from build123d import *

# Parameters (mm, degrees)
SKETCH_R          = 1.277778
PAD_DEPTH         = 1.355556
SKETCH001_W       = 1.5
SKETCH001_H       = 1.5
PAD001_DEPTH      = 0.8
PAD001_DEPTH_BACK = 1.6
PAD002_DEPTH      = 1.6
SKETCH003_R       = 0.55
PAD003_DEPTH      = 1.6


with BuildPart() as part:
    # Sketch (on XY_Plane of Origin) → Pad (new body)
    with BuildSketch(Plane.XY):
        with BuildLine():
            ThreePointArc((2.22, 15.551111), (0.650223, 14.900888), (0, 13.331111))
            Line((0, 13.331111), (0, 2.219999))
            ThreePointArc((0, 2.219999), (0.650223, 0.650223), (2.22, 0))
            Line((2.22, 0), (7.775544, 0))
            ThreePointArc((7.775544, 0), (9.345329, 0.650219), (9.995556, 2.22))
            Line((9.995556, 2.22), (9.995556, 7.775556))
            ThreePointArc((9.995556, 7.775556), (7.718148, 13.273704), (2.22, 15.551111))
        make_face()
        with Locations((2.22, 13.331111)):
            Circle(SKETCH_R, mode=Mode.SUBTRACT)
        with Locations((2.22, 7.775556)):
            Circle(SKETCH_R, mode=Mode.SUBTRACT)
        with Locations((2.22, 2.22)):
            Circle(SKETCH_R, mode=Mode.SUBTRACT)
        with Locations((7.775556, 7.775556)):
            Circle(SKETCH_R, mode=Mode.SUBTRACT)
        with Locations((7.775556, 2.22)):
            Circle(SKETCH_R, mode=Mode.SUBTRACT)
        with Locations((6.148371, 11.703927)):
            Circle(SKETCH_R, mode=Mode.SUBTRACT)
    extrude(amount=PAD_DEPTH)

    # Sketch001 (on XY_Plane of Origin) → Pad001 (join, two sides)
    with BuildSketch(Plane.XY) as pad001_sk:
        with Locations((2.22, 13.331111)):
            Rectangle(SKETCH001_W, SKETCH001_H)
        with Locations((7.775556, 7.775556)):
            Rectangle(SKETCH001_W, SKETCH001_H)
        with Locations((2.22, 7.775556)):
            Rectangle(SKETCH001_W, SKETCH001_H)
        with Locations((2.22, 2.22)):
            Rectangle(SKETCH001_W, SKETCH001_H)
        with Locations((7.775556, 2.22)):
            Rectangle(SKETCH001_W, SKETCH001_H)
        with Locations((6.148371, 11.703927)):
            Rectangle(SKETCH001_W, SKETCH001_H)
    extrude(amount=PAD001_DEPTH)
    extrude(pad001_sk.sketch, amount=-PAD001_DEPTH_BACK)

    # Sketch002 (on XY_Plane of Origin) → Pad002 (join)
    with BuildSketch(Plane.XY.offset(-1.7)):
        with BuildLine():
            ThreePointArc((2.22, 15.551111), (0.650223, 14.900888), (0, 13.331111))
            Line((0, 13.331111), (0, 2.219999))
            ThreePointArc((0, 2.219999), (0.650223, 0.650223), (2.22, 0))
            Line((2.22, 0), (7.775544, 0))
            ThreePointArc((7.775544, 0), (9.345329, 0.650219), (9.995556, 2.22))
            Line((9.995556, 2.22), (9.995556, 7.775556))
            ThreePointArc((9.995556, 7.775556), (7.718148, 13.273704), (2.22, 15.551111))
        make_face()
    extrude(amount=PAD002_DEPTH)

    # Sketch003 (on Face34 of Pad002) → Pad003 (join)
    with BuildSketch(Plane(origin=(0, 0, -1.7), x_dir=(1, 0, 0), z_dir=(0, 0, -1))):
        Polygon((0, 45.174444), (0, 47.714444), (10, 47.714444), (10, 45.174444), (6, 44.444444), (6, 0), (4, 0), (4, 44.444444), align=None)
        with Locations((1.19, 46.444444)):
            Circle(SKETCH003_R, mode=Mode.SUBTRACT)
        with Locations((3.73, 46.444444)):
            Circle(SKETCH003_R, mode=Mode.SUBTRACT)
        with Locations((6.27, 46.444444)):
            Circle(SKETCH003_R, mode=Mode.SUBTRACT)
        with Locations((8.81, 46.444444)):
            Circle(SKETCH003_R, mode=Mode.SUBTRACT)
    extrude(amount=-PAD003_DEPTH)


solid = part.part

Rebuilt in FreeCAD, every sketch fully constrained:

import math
import FreeCAD as App
import Part
import Sketcher

V = App.Vector
Q = App.Units.Quantity


def add_polygon(sketch, points):
    """Adds a closed chain of lines whose ends are joined by coincident constraints."""
    first, n = sketch.GeometryCount, len(points)
    for a, b in zip(points, points[1:] + points[:1]):
        sketch.addGeometry(Part.LineSegment(App.Vector(*a, 0), App.Vector(*b, 0)), False)
    for i in range(n):
        sketch.addConstraint(Sketcher.Constraint("Coincident", first + i, 2, first + (i + 1) % n, 1))

doc = App.newDocument("Part")
body = doc.addObject("PartDesign::Body", "Body")
body.AllowCompound = True

# Sketch on XY plane
sketch1 = body.newObject("Sketcher::SketchObject", "Sketch")
sketch1.AttachmentSupport = (doc.getObject("XY_Plane"), [""])
sketch1.MapMode = "FlatFace"
sketch1.addGeometry(Part.ArcOfCircle(Part.Circle(V(2.22, 13.331111, 0), V(0, 0, 1), 2.22), math.radians(90.000005), math.radians(179.999995)), False)
sketch1.addGeometry(Part.LineSegment(V(0, 13.331111, 0), V(0, 2.219999, 0)), False)
sketch1.addGeometry(Part.ArcOfCircle(Part.Circle(V(2.22, 2.22, 0), V(0, 0, 1), 2.22), math.radians(-179.999969), math.radians(-90.000005)), False)
sketch1.addGeometry(Part.LineSegment(V(2.22, 0, 0), V(7.775544, 0, 0)), False)
sketch1.addGeometry(Part.ArcOfCircle(Part.Circle(V(7.775556, 2.22, 0), V(0, 0, 1), 2.22), math.radians(-90.000305), math.radians(-0.000005)), False)
sketch1.addGeometry(Part.LineSegment(V(9.995556, 2.22, 0), V(9.995556, 7.775556, 0)), False)
sketch1.addGeometry(Part.ArcOfCircle(Part.Circle(V(2.22, 7.775555, 0), V(0, 0, 1), 7.775556), math.radians(0.000004), math.radians(90.000003)), False)
sketch1.addGeometry(Part.Circle(V(2.22, 2.22, 0), V(0, 0, 1), 1.277778), False)
sketch1.addGeometry(Part.Circle(V(7.775556, 2.22, 0), V(0, 0, 1), 1.277778), False)
sketch1.addGeometry(Part.Circle(V(2.22, 7.775556, 0), V(0, 0, 1), 1.277778), False)
sketch1.addGeometry(Part.Circle(V(2.22, 13.331111, 0), V(0, 0, 1), 1.277778), False)
sketch1.addGeometry(Part.Circle(V(7.775556, 7.775556, 0), V(0, 0, 1), 1.277778), False)
sketch1.addGeometry(Part.Circle(V(6.148371, 11.703927, 0), V(0, 0, 1), 1.277778), False)
sketch1.addConstraint(Sketcher.Constraint("Tangent", 0, 2, 1, 1))
sketch1.addConstraint(Sketcher.Constraint("Tangent", 1, 2, 2, 1))
sketch1.addConstraint(Sketcher.Constraint("Tangent", 2, 2, 3, 1))
sketch1.addConstraint(Sketcher.Constraint("Coincident", 3, 2, 4, 1))
sketch1.addConstraint(Sketcher.Constraint("Tangent", 4, 2, 5, 1))
sketch1.addConstraint(Sketcher.Constraint("Tangent", 5, 2, 6, 1))
sketch1.addConstraint(Sketcher.Constraint("Tangent", 6, 2, 0, 1))
sketch1.addConstraint(Sketcher.Constraint("Vertical", 1))
sketch1.addConstraint(Sketcher.Constraint("Horizontal", 3))
sketch1.addConstraint(Sketcher.Constraint("Vertical", 5))
sketch1.addConstraint(Sketcher.Constraint("Coincident", 7, 3, 2, 3))
sketch1.addConstraint(Sketcher.Constraint("Coincident", 8, 3, 4, 3))
sketch1.addConstraint(Sketcher.Constraint("Coincident", 9, 3, 6, 3))
sketch1.addConstraint(Sketcher.Constraint("Coincident", 10, 3, 0, 3))
sketch1.addConstraint(Sketcher.Constraint("Equal", 0, 2))
sketch1.addConstraint(Sketcher.Constraint("Equal", 2, 4))
sketch1.addConstraint(Sketcher.Constraint("Equal", 7, 8))
sketch1.addConstraint(Sketcher.Constraint("Equal", 8, 9))
sketch1.addConstraint(Sketcher.Constraint("Equal", 9, 10))
sketch1.addConstraint(Sketcher.Constraint("Equal", 10, 11))
sketch1.addConstraint(Sketcher.Constraint("Equal", 11, 12))
sketch1.addConstraint(Sketcher.Constraint("PointOnObject", 0, 2, -2))
sketch1.addConstraint(Sketcher.Constraint("PointOnObject", 2, 2, -1))
sketch1.addConstraint(Sketcher.Constraint("Horizontal", 9, 3, 11, 3))
sketch1.addConstraint(Sketcher.Constraint("Vertical", 2, 3, 6, 3))
sketch1.addConstraint(Sketcher.Constraint("Vertical", 8, 3, 11, 3))
sketch1.addConstraint(Sketcher.Constraint("Radius", 0, Q("2.22 mm")))
sketch1.addConstraint(Sketcher.Constraint("Diameter", 7, Q("2.555556 mm")))
sketch1.addConstraint(Sketcher.Constraint("Radius", 6, Q("7.775556 mm")))
sketch1.addConstraint(Sketcher.Constraint("DistanceX", 3, 1, 3, 2, Q("5.555544 mm")))
sketch1.addConstraint(Sketcher.Constraint("DistanceY", 1, 2, 1, 1, Q("11.111112 mm")))
sketch1.addConstraint(Sketcher.Constraint("DistanceX", -1, 1, 12, 3, Q("6.148371 mm")))
sketch1.addConstraint(Sketcher.Constraint("DistanceY", 11, 3, 12, 3, Q("3.928371 mm")))
pad1 = body.newObject("PartDesign::Pad", "Pad")
pad1.Profile = sketch1
pad1.Length = 1.355556

# Sketch on XY plane
sketch2 = body.newObject("Sketcher::SketchObject", "Sketch001")
sketch2.AttachmentSupport = (doc.getObject("XY_Plane"), [""])
sketch2.MapMode = "FlatFace"
add_polygon(sketch2, [(1.47, 14.081111), (1.47, 12.581111), (2.97, 12.581111), (2.97, 14.081111)])  # lines 0-3
add_polygon(sketch2, [(7.025556, 8.525556), (7.025556, 7.025556), (8.525556, 7.025556), (8.525556, 8.525556)])  # lines 4-7
add_polygon(sketch2, [(1.47, 8.525556), (1.47, 7.025556), (2.97, 7.025556), (2.97, 8.525556)])  # lines 8-11
add_polygon(sketch2, [(1.47, 2.97), (1.47, 1.47), (2.97, 1.47), (2.97, 2.97)])  # lines 12-15
add_polygon(sketch2, [(7.025556, 2.97), (7.025556, 1.47), (8.525556, 1.47), (8.525556, 2.97)])  # lines 16-19
add_polygon(sketch2, [(5.398371, 12.453927), (5.398371, 10.953927), (6.898371, 10.953927), (6.898371, 12.453927)])  # lines 20-23
sketch2.addConstraint(Sketcher.Constraint("Vertical", 0))
sketch2.addConstraint(Sketcher.Constraint("Horizontal", 1))
sketch2.addConstraint(Sketcher.Constraint("Vertical", 2))
sketch2.addConstraint(Sketcher.Constraint("Horizontal", 3))
sketch2.addConstraint(Sketcher.Constraint("Vertical", 4))
sketch2.addConstraint(Sketcher.Constraint("Horizontal", 5))
sketch2.addConstraint(Sketcher.Constraint("Vertical", 6))
sketch2.addConstraint(Sketcher.Constraint("Horizontal", 7))
sketch2.addConstraint(Sketcher.Constraint("Vertical", 8))
sketch2.addConstraint(Sketcher.Constraint("Horizontal", 9))
sketch2.addConstraint(Sketcher.Constraint("Vertical", 10))
sketch2.addConstraint(Sketcher.Constraint("Horizontal", 11))
sketch2.addConstraint(Sketcher.Constraint("Vertical", 12))
sketch2.addConstraint(Sketcher.Constraint("Horizontal", 13))
sketch2.addConstraint(Sketcher.Constraint("Vertical", 14))
sketch2.addConstraint(Sketcher.Constraint("Horizontal", 15))
sketch2.addConstraint(Sketcher.Constraint("Vertical", 16))
sketch2.addConstraint(Sketcher.Constraint("Horizontal", 17))
sketch2.addConstraint(Sketcher.Constraint("Vertical", 18))
sketch2.addConstraint(Sketcher.Constraint("Horizontal", 19))
sketch2.addConstraint(Sketcher.Constraint("Vertical", 20))
sketch2.addConstraint(Sketcher.Constraint("Horizontal", 21))
sketch2.addConstraint(Sketcher.Constraint("Vertical", 22))
sketch2.addConstraint(Sketcher.Constraint("Horizontal", 23))
sketch2.addConstraint(Sketcher.Constraint("Horizontal", 5, 2, 8, 2))
sketch2.addConstraint(Sketcher.Constraint("Horizontal", 7, 2, 10, 2))
sketch2.addConstraint(Sketcher.Constraint("Horizontal", 13, 2, 16, 2))
sketch2.addConstraint(Sketcher.Constraint("Horizontal", 15, 2, 18, 2))
sketch2.addConstraint(Sketcher.Constraint("Vertical", 3, 2, 8, 2))
sketch2.addConstraint(Sketcher.Constraint("Vertical", 2, 2, 9, 2))
sketch2.addConstraint(Sketcher.Constraint("Vertical", 11, 2, 12, 2))
sketch2.addConstraint(Sketcher.Constraint("Vertical", 10, 2, 13, 2))
sketch2.addConstraint(Sketcher.Constraint("Vertical", 7, 2, 16, 2))
sketch2.addConstraint(Sketcher.Constraint("Vertical", 6, 2, 17, 2))
sketch2.addConstraint(Sketcher.Constraint("Equal", 3, 5))
sketch2.addConstraint(Sketcher.Constraint("Equal", 19, 21))
sketch2.addConstraint(Sketcher.Constraint("Equal", 23, 0))
sketch2.addConstraint(Sketcher.Constraint("Equal", 2, 4))
sketch2.addConstraint(Sketcher.Constraint("Equal", 10, 12))
sketch2.addConstraint(Sketcher.Constraint("Equal", 18, 20))
sketch2.addConstraint(Sketcher.Constraint("DistanceX", 1, 1, 1, 2, Q("1.5 mm")))
sketch2.addConstraint(Sketcher.Constraint("DistanceX", -1, 1, 0, 2, Q("1.47 mm")))
sketch2.addConstraint(Sketcher.Constraint("DistanceY", -1, 1, 12, 2, Q("1.47 mm")))
sketch2.addConstraint(Sketcher.Constraint("DistanceY", -1, 1, 0, 2, Q("12.581111 mm")))
sketch2.addConstraint(Sketcher.Constraint("DistanceX", -1, 1, 20, 2, Q("5.398371 mm")))
sketch2.addConstraint(Sketcher.Constraint("DistanceY", 7, 2, 20, 2, Q("2.428371 mm")))
sketch2.addConstraint(Sketcher.Constraint("DistanceX", -1, 1, 4, 2, Q("7.025556 mm")))
sketch2.addConstraint(Sketcher.Constraint("DistanceY", -1, 1, 4, 2, Q("7.025556 mm")))
pad2 = body.newObject("PartDesign::Pad", "Pad001")
pad2.Profile = sketch2
pad2.Type = "TwoLengths"
pad2.Length = 0.8
pad2.Length2 = 1.6

# Sketch on XY plane
sketch3 = body.newObject("Sketcher::SketchObject", "Sketch002")
sketch3.AttachmentSupport = (doc.getObject("XY_Plane"), [""])
sketch3.MapMode = "FlatFace"
sketch3.AttachmentOffset = App.Placement(V(0, 0, -1.7), App.Rotation())
sketch3.addGeometry(Part.ArcOfCircle(Part.Circle(V(2.22, 13.331111, 0), V(0, 0, 1), 2.22), math.radians(90.000005), math.radians(179.999995)), False)
sketch3.addGeometry(Part.LineSegment(V(0, 13.331111, 0), V(0, 2.219999, 0)), False)
sketch3.addGeometry(Part.ArcOfCircle(Part.Circle(V(2.22, 2.22, 0), V(0, 0, 1), 2.22), math.radians(-179.999969), math.radians(-90.000005)), False)
sketch3.addGeometry(Part.LineSegment(V(2.22, 0, 0), V(7.775544, 0, 0)), False)
sketch3.addGeometry(Part.ArcOfCircle(Part.Circle(V(7.775556, 2.22, 0), V(0, 0, 1), 2.22), math.radians(-90.000305), math.radians(-0.000005)), False)
sketch3.addGeometry(Part.LineSegment(V(9.995556, 2.22, 0), V(9.995556, 7.775556, 0)), False)
sketch3.addGeometry(Part.ArcOfCircle(Part.Circle(V(2.22, 7.775555, 0), V(0, 0, 1), 7.775556), math.radians(0.000004), math.radians(90.000003)), False)
sketch3.addConstraint(Sketcher.Constraint("Tangent", 0, 2, 1, 1))
sketch3.addConstraint(Sketcher.Constraint("Tangent", 1, 2, 2, 1))
sketch3.addConstraint(Sketcher.Constraint("Tangent", 2, 2, 3, 1))
sketch3.addConstraint(Sketcher.Constraint("Coincident", 3, 2, 4, 1))
sketch3.addConstraint(Sketcher.Constraint("Tangent", 4, 2, 5, 1))
sketch3.addConstraint(Sketcher.Constraint("Tangent", 5, 2, 6, 1))
sketch3.addConstraint(Sketcher.Constraint("Tangent", 6, 2, 0, 1))
sketch3.addConstraint(Sketcher.Constraint("Vertical", 1))
sketch3.addConstraint(Sketcher.Constraint("Horizontal", 3))
sketch3.addConstraint(Sketcher.Constraint("Vertical", 5))
sketch3.addConstraint(Sketcher.Constraint("Equal", 0, 2))
sketch3.addConstraint(Sketcher.Constraint("Equal", 2, 4))
sketch3.addConstraint(Sketcher.Constraint("PointOnObject", 0, 2, -2))
sketch3.addConstraint(Sketcher.Constraint("PointOnObject", 2, 2, -1))
sketch3.addConstraint(Sketcher.Constraint("Vertical", 2, 3, 6, 3))
sketch3.addConstraint(Sketcher.Constraint("Radius", 0, Q("2.22 mm")))
sketch3.addConstraint(Sketcher.Constraint("Radius", 6, Q("7.775556 mm")))
sketch3.addConstraint(Sketcher.Constraint("DistanceX", 3, 1, 3, 2, Q("5.555544 mm")))
sketch3.addConstraint(Sketcher.Constraint("DistanceY", 1, 2, 1, 1, Q("11.111112 mm")))
pad3 = body.newObject("PartDesign::Pad", "Pad002")
pad3.Profile = sketch3
pad3.Length = 1.6

# Sketch on XY plane
sketch4 = body.newObject("Sketcher::SketchObject", "Sketch003")
sketch4.AttachmentSupport = (doc.getObject("XY_Plane"), [""])
sketch4.MapMode = "FlatFace"
sketch4.AttachmentOffset = App.Placement(V(0, 0, -1.7), App.Rotation())
add_polygon(sketch4, [(0, -47.714444), (0, -45.174444), (4, -44.444444), (4, 0), (6, 0), (6, -44.444444), (10, -45.174444), (10, -47.714444)])  # lines 0-7
sketch4.addGeometry(Part.Circle(V(8.81, -46.444444, 0), V(0, 0, 1), 0.55), False)  # 8
sketch4.addGeometry(Part.Circle(V(6.27, -46.444444, 0), V(0, 0, 1), 0.55), False)  # 9
sketch4.addGeometry(Part.Circle(V(3.73, -46.444444, 0), V(0, 0, 1), 0.55), False)  # 10
sketch4.addGeometry(Part.Circle(V(1.19, -46.444444, 0), V(0, 0, 1), 0.55), False)  # 11
sketch4.addConstraint(Sketcher.Constraint("Vertical", 0))
sketch4.addConstraint(Sketcher.Constraint("Vertical", 2))
sketch4.addConstraint(Sketcher.Constraint("Horizontal", 3))
sketch4.addConstraint(Sketcher.Constraint("Vertical", 4))
sketch4.addConstraint(Sketcher.Constraint("Vertical", 6))
sketch4.addConstraint(Sketcher.Constraint("Horizontal", 7))
sketch4.addConstraint(Sketcher.Constraint("Equal", 8, 9))
sketch4.addConstraint(Sketcher.Constraint("Equal", 9, 10))
sketch4.addConstraint(Sketcher.Constraint("Equal", 10, 11))
sketch4.addConstraint(Sketcher.Constraint("PointOnObject", 0, 2, -2))
sketch4.addConstraint(Sketcher.Constraint("PointOnObject", 2, 2, -1))
sketch4.addConstraint(Sketcher.Constraint("Horizontal", 8, 3, 9, 3))
sketch4.addConstraint(Sketcher.Constraint("Horizontal", 9, 3, 10, 3))
sketch4.addConstraint(Sketcher.Constraint("Horizontal", 10, 3, 11, 3))
sketch4.addConstraint(Sketcher.Constraint("Horizontal", 1, 2, 4, 2))
sketch4.addConstraint(Sketcher.Constraint("Horizontal", 0, 2, 5, 2))
sketch4.addConstraint(Sketcher.Constraint("Equal", 1, 5))
sketch4.addConstraint(Sketcher.Constraint("Diameter", 8, Q("1.1 mm")))
sketch4.addConstraint(Sketcher.Constraint("DistanceX", 3, 1, 3, 2, Q("2 mm")))
sketch4.addConstraint(Sketcher.Constraint("DistanceX", 7, 2, 7, 1, Q("10 mm")))
sketch4.addConstraint(Sketcher.Constraint("DistanceY", 10, 3, 1, 2, Q("2 mm")))
sketch4.addConstraint(Sketcher.Constraint("DistanceY", 0, 1, 0, 2, Q("2.54 mm")))
sketch4.addConstraint(Sketcher.Constraint("DistanceX", -1, 1, 8, 3, Q("8.81 mm")))
sketch4.addConstraint(Sketcher.Constraint("DistanceX", -1, 1, 9, 3, Q("6.27 mm")))
sketch4.addConstraint(Sketcher.Constraint("DistanceX", -1, 1, 10, 3, Q("3.73 mm")))
sketch4.addConstraint(Sketcher.Constraint("DistanceX", -1, 1, 11, 3, Q("1.19 mm")))
sketch4.addConstraint(Sketcher.Constraint("DistanceY", 11, 3, 0, 2, Q("1.27 mm")))
sketch4.addConstraint(Sketcher.Constraint("DistanceY", 2, 1, 2, 2, Q("44.444444 mm")))
pad4 = body.newObject("PartDesign::Pad", "Pad003")
pad4.Profile = sketch4
pad4.Length = 1.6

doc.recompute()
